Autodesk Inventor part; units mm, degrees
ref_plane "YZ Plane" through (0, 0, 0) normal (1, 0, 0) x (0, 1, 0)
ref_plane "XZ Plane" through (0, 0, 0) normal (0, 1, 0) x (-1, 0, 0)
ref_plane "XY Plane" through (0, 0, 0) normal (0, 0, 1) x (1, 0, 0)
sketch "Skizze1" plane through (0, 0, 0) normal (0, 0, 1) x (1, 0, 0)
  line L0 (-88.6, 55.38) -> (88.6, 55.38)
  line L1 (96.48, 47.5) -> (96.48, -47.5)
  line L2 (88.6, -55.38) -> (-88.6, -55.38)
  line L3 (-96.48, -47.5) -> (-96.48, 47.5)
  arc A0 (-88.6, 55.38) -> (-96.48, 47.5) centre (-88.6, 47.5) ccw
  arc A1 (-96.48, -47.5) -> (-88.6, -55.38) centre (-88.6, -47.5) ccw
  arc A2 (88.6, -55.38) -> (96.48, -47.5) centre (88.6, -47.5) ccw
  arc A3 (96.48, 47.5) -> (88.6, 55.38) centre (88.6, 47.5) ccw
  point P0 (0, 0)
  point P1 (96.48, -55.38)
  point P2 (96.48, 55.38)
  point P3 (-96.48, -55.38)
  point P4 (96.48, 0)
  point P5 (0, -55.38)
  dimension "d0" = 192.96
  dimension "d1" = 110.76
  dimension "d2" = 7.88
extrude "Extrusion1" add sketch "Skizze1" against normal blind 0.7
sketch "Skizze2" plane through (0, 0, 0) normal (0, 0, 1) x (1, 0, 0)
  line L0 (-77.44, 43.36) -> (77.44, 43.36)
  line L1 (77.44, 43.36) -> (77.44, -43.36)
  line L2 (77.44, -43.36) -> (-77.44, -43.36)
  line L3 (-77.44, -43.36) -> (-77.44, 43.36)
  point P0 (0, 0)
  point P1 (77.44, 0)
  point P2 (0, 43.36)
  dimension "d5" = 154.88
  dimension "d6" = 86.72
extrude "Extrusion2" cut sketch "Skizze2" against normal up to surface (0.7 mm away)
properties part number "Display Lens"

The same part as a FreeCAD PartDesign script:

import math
import FreeCAD as App
import Part
import Sketcher

V = App.Vector


def add_polygon(sketch, points):
    """Adds a closed chain of lines whose ends are joined by coincident constraints."""
    first, n = sketch.GeometryCount, len(points)
    for a, b in zip(points, points[1:] + points[:1]):
        sketch.addGeometry(Part.LineSegment(App.Vector(*a, 0), App.Vector(*b, 0)), False)
    for i in range(n):
        sketch.addConstraint(Sketcher.Constraint("Coincident", first + i, 2, first + (i + 1) % n, 1))

doc = App.newDocument("Part")
body = doc.addObject("PartDesign::Body", "Body")

# Sketch on XY plane
sketch1 = doc.addObject("Sketcher::SketchObject", "Sketch")
body.addObject(sketch1)
sketch1.AttachmentSupport = (doc.XY_Plane, [""])
sketch1.MapMode = "FlatFace"
sketch1.addGeometry([
    Part.LineSegment(V(88.6, 55.38, 0), V(-88.6, 55.38, 0)),  # 0
    Part.ArcOfCircle(Part.Circle(V(-88.6, 47.5, 0), V(0, 0, 1), 7.88), math.radians(90), math.radians(180)),  # 1
    Part.LineSegment(V(-96.48, 47.5, 0), V(-96.48, -47.5, 0)),  # 2
    Part.ArcOfCircle(Part.Circle(V(-88.6, -47.5, 0), V(0, 0, 1), 7.88), math.radians(180), math.radians(270)),  # 3
    Part.LineSegment(V(-88.6, -55.38, 0), V(88.6, -55.38, 0)),  # 4
    Part.ArcOfCircle(Part.Circle(V(88.6, -47.5, 0), V(0, 0, 1), 7.88), math.radians(-90), math.radians(0)),  # 5
    Part.LineSegment(V(96.48, -47.5, 0), V(96.48, 47.5, 0)),  # 6
    Part.ArcOfCircle(Part.Circle(V(88.6, 47.5, 0), V(0, 0, 1), 7.88), math.radians(0), math.radians(90)),  # 7
], False)
sketch1.addConstraint([
    Sketcher.Constraint("Tangent", 0, 2, 1, 1),
    Sketcher.Constraint("Tangent", 1, 2, 2, 1),
    Sketcher.Constraint("Tangent", 2, 2, 3, 1),
    Sketcher.Constraint("Tangent", 3, 2, 4, 1),
    Sketcher.Constraint("Tangent", 4, 2, 5, 1),
    Sketcher.Constraint("Tangent", 5, 2, 6, 1),
    Sketcher.Constraint("Tangent", 6, 2, 7, 1),
    Sketcher.Constraint("Tangent", 7, 2, 0, 1),
    Sketcher.Constraint("Horizontal", 0),
    Sketcher.Constraint("Vertical", 2),
    Sketcher.Constraint("Horizontal", 4),
    Sketcher.Constraint("Vertical", 6),
    Sketcher.Constraint("Equal", 1, 3),
    Sketcher.Constraint("Equal", 3, 5),
    Sketcher.Constraint("Equal", 5, 7),
    Sketcher.Constraint("Symmetric", 1, 3, 5, 3, -1, 1),
    Sketcher.Constraint("Radius", 1, 7.88),
    Sketcher.Constraint("DistanceY", 2, 2, 2, 1, 95.0),
    Sketcher.Constraint("DistanceX", 0, 2, 0, 1, 177.2),
])
pad1 = doc.addObject("PartDesign::Pad", "Pad")
body.addObject(pad1)
pad1.Profile = sketch1
pad1.Length = 0.7
pad1.Reversed = True

# Sketch on XY plane
sketch2 = doc.addObject("Sketcher::SketchObject", "Sketch001")
body.addObject(sketch2)
sketch2.AttachmentSupport = (doc.XY_Plane, [""])
sketch2.MapMode = "FlatFace"
add_polygon(sketch2, [(77.44, 43.36), (-77.44, 43.36), (-77.44, -43.36), (77.44, -43.36)])  # lines 0-3
sketch2.addConstraint([
    Sketcher.Constraint("Horizontal", 0),
    Sketcher.Constraint("Vertical", 1),
    Sketcher.Constraint("Horizontal", 2),
    Sketcher.Constraint("Vertical", 3),
    Sketcher.Constraint("Symmetric", 0, 2, 2, 2, -1, 1),
    Sketcher.Constraint("DistanceX", 0, 2, 0, 1, 154.88),
    Sketcher.Constraint("DistanceY", 1, 2, 1, 1, 86.72),
])
pocket1 = doc.addObject("PartDesign::Pocket", "Pocket")
body.addObject(pocket1)
pocket1.Profile = sketch2
pocket1.Length = 0.7

doc.recompute()
